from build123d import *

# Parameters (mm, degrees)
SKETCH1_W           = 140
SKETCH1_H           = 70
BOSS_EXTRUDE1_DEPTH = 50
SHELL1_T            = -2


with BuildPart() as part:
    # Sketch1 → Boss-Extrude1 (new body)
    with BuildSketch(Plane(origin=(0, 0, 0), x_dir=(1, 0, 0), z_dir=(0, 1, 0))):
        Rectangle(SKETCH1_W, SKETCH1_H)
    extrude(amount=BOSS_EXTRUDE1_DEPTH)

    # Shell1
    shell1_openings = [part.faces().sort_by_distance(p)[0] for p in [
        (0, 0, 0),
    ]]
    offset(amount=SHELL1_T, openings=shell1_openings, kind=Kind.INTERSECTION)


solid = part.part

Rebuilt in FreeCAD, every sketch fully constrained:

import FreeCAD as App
import Part
import Sketcher

V = App.Vector
Q = App.Units.Quantity


def faces_at(feature, points):
    """Names of the faces that lie closest to the given points."""
    faces = feature.Shape.Faces
    near = lambda p: min(range(len(faces)), key=lambda i: faces[i].distToShape(Part.Vertex(*p))[0])
    return sorted({f"Face{near(p) + 1}" for p in points})

doc = App.newDocument("Part")
params = doc.addObject("Spreadsheet::Sheet", "Params")
for row, (alias, value) in enumerate([
    ("sketch1_width", "140 mm"),
    ("sketch1_height", "70 mm"),
    ("pad1_length", "50 mm"),
    ("thickness_wall", "2 mm"),
], start=1):
    params.set(f"A{row}", alias)
    params.set(f"B{row}", "=" + value)
    params.setAlias(f"B{row}", alias)

body = doc.addObject("PartDesign::Body", "Body")

sketch1 = body.newObject("Sketcher::SketchObject", "Sketch")
sketch1.AttachmentSupport = (doc.getObject("XZ_Plane"), [""])
sketch1.MapMode = "FlatFace"
sketch1.addGeometry(Part.LineSegment(V(-70, -35, 0), V(-70, 35, 0)), False)
sketch1.addGeometry(Part.LineSegment(V(-70, 35, 0), V(70, 35, 0)), False)
sketch1.addGeometry(Part.LineSegment(V(70, 35, 0), V(70, -35, 0)), False)
sketch1.addGeometry(Part.LineSegment(V(70, -35, 0), V(-70, -35, 0)), False)
sketch1.addConstraint(Sketcher.Constraint("Coincident", 0, 2, 1, 1))
sketch1.addConstraint(Sketcher.Constraint("Coincident", 1, 2, 2, 1))
sketch1.addConstraint(Sketcher.Constraint("Coincident", 2, 2, 3, 1))
sketch1.addConstraint(Sketcher.Constraint("Coincident", 3, 2, 0, 1))
sketch1.addConstraint(Sketcher.Constraint("Vertical", 0))
sketch1.addConstraint(Sketcher.Constraint("Horizontal", 1))
sketch1.addConstraint(Sketcher.Constraint("Vertical", 2))
sketch1.addConstraint(Sketcher.Constraint("Horizontal", 3))
sketch1.addConstraint(Sketcher.Constraint("Symmetric", 0, 2, 2, 2, -1, 1))
sketch1.addConstraint(Sketcher.Constraint("DistanceX", 1, 1, 1, 2, Q("140 mm")))
sketch1.addConstraint(Sketcher.Constraint("DistanceY", 0, 1, 0, 2, Q("70 mm")))
sketch1.setExpression("Constraints[9]", "Params.sketch1_width")
sketch1.setExpression("Constraints[10]", "Params.sketch1_height")
pad1 = body.newObject("PartDesign::Pad", "Pad")
pad1.Profile = sketch1
pad1.setExpression("Length", "Params.pad1_length")
pad1.Reversed = True
doc.recompute()

thickness = body.newObject("PartDesign::Thickness", "Thickness")
thickness.Base = (pad1, faces_at(pad1, [(0, 0, 0)]))
thickness.setExpression("Value", "Params.thickness_wall")
thickness.Reversed = True
thickness.Join = "Intersection"

doc.recompute()
